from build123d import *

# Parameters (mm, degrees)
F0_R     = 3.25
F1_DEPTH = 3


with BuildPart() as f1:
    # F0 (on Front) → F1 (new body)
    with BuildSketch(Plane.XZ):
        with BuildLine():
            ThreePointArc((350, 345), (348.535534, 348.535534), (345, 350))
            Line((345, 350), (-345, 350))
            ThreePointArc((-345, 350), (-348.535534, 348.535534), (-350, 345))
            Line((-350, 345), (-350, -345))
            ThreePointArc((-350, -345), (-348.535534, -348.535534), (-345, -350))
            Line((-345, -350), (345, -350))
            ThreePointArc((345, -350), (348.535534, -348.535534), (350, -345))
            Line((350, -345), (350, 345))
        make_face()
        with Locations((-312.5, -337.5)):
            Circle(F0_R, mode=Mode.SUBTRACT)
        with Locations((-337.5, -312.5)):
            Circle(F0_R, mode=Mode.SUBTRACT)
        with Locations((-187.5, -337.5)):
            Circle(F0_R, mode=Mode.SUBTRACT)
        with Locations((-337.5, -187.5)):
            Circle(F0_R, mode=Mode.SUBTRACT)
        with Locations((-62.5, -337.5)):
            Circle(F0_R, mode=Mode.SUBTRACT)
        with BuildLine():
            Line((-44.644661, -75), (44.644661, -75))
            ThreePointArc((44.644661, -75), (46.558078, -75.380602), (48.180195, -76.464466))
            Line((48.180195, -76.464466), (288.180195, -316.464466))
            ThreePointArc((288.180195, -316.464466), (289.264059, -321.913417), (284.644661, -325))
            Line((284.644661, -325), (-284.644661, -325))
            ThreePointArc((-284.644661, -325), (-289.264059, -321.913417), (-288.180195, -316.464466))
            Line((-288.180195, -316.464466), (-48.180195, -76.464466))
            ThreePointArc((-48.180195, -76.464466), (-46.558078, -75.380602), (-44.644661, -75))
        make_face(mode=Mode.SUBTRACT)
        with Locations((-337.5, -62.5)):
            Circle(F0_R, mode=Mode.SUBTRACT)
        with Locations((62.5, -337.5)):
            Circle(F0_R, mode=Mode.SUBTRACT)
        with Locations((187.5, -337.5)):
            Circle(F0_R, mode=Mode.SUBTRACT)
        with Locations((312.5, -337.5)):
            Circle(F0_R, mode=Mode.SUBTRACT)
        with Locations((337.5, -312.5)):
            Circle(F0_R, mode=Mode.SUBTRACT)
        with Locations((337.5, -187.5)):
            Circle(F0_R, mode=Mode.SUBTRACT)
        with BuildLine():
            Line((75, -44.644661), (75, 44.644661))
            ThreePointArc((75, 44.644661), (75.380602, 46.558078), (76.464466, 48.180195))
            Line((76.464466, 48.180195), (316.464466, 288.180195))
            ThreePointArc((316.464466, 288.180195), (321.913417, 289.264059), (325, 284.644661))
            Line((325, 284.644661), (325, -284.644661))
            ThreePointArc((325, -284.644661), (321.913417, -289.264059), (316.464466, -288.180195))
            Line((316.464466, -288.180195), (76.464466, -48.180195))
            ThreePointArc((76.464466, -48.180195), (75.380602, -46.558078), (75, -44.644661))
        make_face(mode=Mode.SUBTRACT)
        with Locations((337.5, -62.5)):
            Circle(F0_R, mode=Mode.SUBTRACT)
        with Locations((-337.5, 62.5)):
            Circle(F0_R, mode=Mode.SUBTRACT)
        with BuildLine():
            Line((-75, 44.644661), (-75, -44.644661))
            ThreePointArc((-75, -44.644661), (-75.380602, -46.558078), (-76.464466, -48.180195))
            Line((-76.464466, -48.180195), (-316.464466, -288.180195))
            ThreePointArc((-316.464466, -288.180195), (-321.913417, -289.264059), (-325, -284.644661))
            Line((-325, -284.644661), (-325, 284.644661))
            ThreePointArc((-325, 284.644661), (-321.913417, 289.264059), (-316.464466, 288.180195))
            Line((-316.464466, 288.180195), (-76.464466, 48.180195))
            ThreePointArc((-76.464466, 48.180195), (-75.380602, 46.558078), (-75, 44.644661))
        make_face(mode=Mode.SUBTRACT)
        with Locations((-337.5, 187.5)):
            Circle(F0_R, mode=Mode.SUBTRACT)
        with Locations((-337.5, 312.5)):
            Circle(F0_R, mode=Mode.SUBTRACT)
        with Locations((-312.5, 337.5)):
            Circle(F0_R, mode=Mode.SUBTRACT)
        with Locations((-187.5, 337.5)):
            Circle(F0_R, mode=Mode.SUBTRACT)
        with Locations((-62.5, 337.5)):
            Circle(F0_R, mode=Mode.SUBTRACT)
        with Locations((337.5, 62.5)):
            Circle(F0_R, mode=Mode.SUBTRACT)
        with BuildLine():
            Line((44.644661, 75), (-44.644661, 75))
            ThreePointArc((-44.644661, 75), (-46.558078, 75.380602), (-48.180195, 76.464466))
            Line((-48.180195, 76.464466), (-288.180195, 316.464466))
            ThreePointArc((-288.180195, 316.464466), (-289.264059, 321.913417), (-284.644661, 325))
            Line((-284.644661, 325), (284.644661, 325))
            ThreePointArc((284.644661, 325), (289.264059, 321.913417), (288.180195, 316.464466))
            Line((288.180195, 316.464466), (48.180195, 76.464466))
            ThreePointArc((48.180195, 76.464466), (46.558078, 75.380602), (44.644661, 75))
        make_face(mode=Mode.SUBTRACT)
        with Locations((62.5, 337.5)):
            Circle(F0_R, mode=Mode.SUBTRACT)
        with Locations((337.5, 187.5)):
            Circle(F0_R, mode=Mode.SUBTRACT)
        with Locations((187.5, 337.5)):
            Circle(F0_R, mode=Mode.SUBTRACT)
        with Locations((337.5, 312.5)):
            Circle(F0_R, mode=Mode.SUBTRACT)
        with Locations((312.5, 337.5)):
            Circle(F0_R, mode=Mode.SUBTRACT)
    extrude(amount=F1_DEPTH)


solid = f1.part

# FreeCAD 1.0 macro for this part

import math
import FreeCAD as App
import Part
import Sketcher

V = App.Vector

doc = App.newDocument("Part")
body = doc.addObject("PartDesign::Body", "Body")

sketch1 = body.newObject("Sketcher::SketchObject", "Sketch")
sketch1.AttachmentSupport = (doc.getObject("XZ_Plane"), [""])
sketch1.MapMode = "FlatFace"
sketch1.addGeometry([
    Part.ArcOfCircle(Part.Circle(V(345, 345, 0), V(0, 0, 1), 5), math.radians(0), math.radians(90)),
    Part.LineSegment(V(345, 350, 0), V(-345, 350, 0)),
    Part.ArcOfCircle(Part.Circle(V(-345, 345, 0), V(0, 0, 1), 5), math.radians(90), math.radians(180)),
    Part.LineSegment(V(-350, 345, 0), V(-350, -345, 0)),
    Part.ArcOfCircle(Part.Circle(V(-345, -345, 0), V(0, 0, 1), 5), math.radians(180), math.radians(270)),
    Part.LineSegment(V(-345, -350, 0), V(345, -350, 0)),
    Part.ArcOfCircle(Part.Circle(V(345, -345, 0), V(0, 0, 1), 5), math.radians(-90), math.radians(0)),
    Part.LineSegment(V(350, -345, 0), V(350, 345, 0)),
    Part.Circle(V(-312.5, -337.5, 0), V(0, 0, 1), 3.2),
    Part.Circle(V(-337.5, -312.5, 0), V(0, 0, 1), 3.2),
    Part.Circle(V(-187.5, -337.5, 0), V(0, 0, 1), 3.2),
    Part.Circle(V(-337.5, -187.5, 0), V(0, 0, 1), 3.2),
    Part.Circle(V(-62.5, -337.5, 0), V(0, 0, 1), 3.2),
    Part.Circle(V(-337.5, -62.5, 0), V(0, 0, 1), 3.2),
    Part.Circle(V(62.5, -337.5, 0), V(0, 0, 1), 3.2),
    Part.ArcOfCircle(Part.Circle(V(-44.6, -80, 0), V(0, 0, 1), 5), math.radians(90), math.radians(135)),
    Part.LineSegment(V(-44.6, -75, 0), V(44.6, -75, 0)),
    Part.ArcOfCircle(Part.Circle(V(44.6, -80, 0), V(0, 0, 1), 5), math.radians(45), math.radians(90)),
    Part.LineSegment(V(48.2, -76.5, 0), V(288.2, -316.5, 0)),
    Part.ArcOfCircle(Part.Circle(V(284.6, -320, 0), V(0, 0, 1), 5), math.radians(-90), math.radians(45)),
    Part.LineSegment(V(284.6, -325, 0), V(-284.6, -325, 0)),
    Part.ArcOfCircle(Part.Circle(V(-284.6, -320, 0), V(0, 0, 1), 5), math.radians(135), math.radians(270)),
    Part.LineSegment(V(-288.2, -316.5, 0), V(-48.2, -76.5, 0)),
    Part.Circle(V(187.5, -337.5, 0), V(0, 0, 1), 3.2),
    Part.Circle(V(312.5, -337.5, 0), V(0, 0, 1), 3.2),
    Part.Circle(V(337.5, -312.5, 0), V(0, 0, 1), 3.2),
    Part.Circle(V(337.5, -187.5, 0), V(0, 0, 1), 3.2),
    Part.Circle(V(337.5, -62.5, 0), V(0, 0, 1), 3.2),
    Part.Circle(V(-337.5, 62.5, 0), V(0, 0, 1), 3.2),
    Part.ArcOfCircle(Part.Circle(V(-80, 44.6, 0), V(0, 0, 1), 5), math.radians(0), math.radians(45)),
    Part.LineSegment(V(-75, 44.6, 0), V(-75, -44.6, 0)),
    Part.ArcOfCircle(Part.Circle(V(-80, -44.6, 0), V(0, 0, 1), 5), math.radians(-45), math.radians(0)),
    Part.LineSegment(V(-76.5, -48.2, 0), V(-316.5, -288.2, 0)),
    Part.ArcOfCircle(Part.Circle(V(-320, -284.6, 0), V(0, 0, 1), 5), math.radians(180), math.radians(315)),
    Part.LineSegment(V(-325, -284.6, 0), V(-325, 284.6, 0)),
    Part.ArcOfCircle(Part.Circle(V(-320, 284.6, 0), V(0, 0, 1), 5), math.radians(45), math.radians(180)),
    Part.LineSegment(V(-316.5, 288.2, 0), V(-76.5, 48.2, 0)),
    Part.Circle(V(-337.5, 187.5, 0), V(0, 0, 1), 3.2),
    Part.Circle(V(-337.5, 312.5, 0), V(0, 0, 1), 3.2),
    Part.Circle(V(-312.5, 337.5, 0), V(0, 0, 1), 3.2),
    Part.Circle(V(-187.5, 337.5, 0), V(0, 0, 1), 3.2),
    Part.Circle(V(-62.5, 337.5, 0), V(0, 0, 1), 3.2),
    Part.ArcOfCircle(Part.Circle(V(80, -44.6, 0), V(0, 0, 1), 5), math.radians(180), math.radians(225)),
    Part.LineSegment(V(75, -44.6, 0), V(75, 44.6, 0)),
    Part.ArcOfCircle(Part.Circle(V(80, 44.6, 0), V(0, 0, 1), 5), math.radians(135), math.radians(180)),
    Part.LineSegment(V(76.5, 48.2, 0), V(316.5, 288.2, 0)),
    Part.ArcOfCircle(Part.Circle(V(320, 284.6, 0), V(0, 0, 1), 5), math.radians(0), math.radians(135)),
    Part.LineSegment(V(325, 284.6, 0), V(325, -284.6, 0)),
    Part.ArcOfCircle(Part.Circle(V(320, -284.6, 0), V(0, 0, 1), 5), math.radians(-135), math.radians(0)),
    Part.LineSegment(V(316.5, -288.2, 0), V(76.5, -48.2, 0)),
    Part.Circle(V(337.5, 62.5, 0), V(0, 0, 1), 3.2),
    Part.ArcOfCircle(Part.Circle(V(44.6, 80, 0), V(0, 0, 1), 5), math.radians(-90), math.radians(-45)),
    Part.LineSegment(V(44.6, 75, 0), V(-44.6, 75, 0)),
    Part.ArcOfCircle(Part.Circle(V(-44.6, 80, 0), V(0, 0, 1), 5), math.radians(-135), math.radians(-90)),
    Part.LineSegment(V(-48.2, 76.5, 0), V(-288.2, 316.5, 0)),
    Part.ArcOfCircle(Part.Circle(V(-284.6, 320, 0), V(0, 0, 1), 5), math.radians(90), math.radians(225)),
    Part.LineSegment(V(-284.6, 325, 0), V(284.6, 325, 0)),
    Part.ArcOfCircle(Part.Circle(V(284.6, 320, 0), V(0, 0, 1), 5), math.radians(-45), math.radians(90)),
    Part.LineSegment(V(288.2, 316.5, 0), V(48.2, 76.5, 0)),
    Part.Circle(V(62.5, 337.5, 0), V(0, 0, 1), 3.2),
    Part.Circle(V(337.5, 187.5, 0), V(0, 0, 1), 3.2),
    Part.Circle(V(187.5, 337.5, 0), V(0, 0, 1), 3.2),
    Part.Circle(V(337.5, 312.5, 0), V(0, 0, 1), 3.2),
    Part.Circle(V(312.5, 337.5, 0), V(0, 0, 1), 3.2),
], False)
sketch1.addConstraint([
    Sketcher.Constraint("Tangent", 0, 2, 1, 1),
    Sketcher.Constraint("Tangent", 1, 2, 2, 1),
    Sketcher.Constraint("Tangent", 2, 2, 3, 1),
    Sketcher.Constraint("Tangent", 3, 2, 4, 1),
    Sketcher.Constraint("Tangent", 4, 2, 5, 1),
    Sketcher.Constraint("Tangent", 5, 2, 6, 1),
    Sketcher.Constraint("Tangent", 6, 2, 7, 1),
    Sketcher.Constraint("Tangent", 7, 2, 0, 1),
    Sketcher.Constraint("Tangent", 15, 1, 16, 1),
    Sketcher.Constraint("Tangent", 16, 2, 17, 2),
    Sketcher.Constraint("Tangent", 17, 1, 18, 1),
    Sketcher.Constraint("Tangent", 18, 2, 19, 2),
    Sketcher.Constraint("Tangent", 19, 1, 20, 1),
    Sketcher.Constraint("Tangent", 20, 2, 21, 2),
    Sketcher.Constraint("Tangent", 21, 1, 22, 1),
    Sketcher.Constraint("Tangent", 22, 2, 15, 2),
    Sketcher.Constraint("Tangent", 29, 1, 30, 1),
    Sketcher.Constraint("Tangent", 30, 2, 31, 2),
    Sketcher.Constraint("Tangent", 31, 1, 32, 1),
    Sketcher.Constraint("Tangent", 32, 2, 33, 2),
    Sketcher.Constraint("Tangent", 33, 1, 34, 1),
    Sketcher.Constraint("Tangent", 34, 2, 35, 2),
    Sketcher.Constraint("Tangent", 35, 1, 36, 1),
    Sketcher.Constraint("Tangent", 36, 2, 29, 2),
    Sketcher.Constraint("Tangent", 42, 1, 43, 1),
    Sketcher.Constraint("Tangent", 43, 2, 44, 2),
    Sketcher.Constraint("Tangent", 44, 1, 45, 1),
    Sketcher.Constraint("Tangent", 45, 2, 46, 2),
    Sketcher.Constraint("Tangent", 46, 1, 47, 1),
    Sketcher.Constraint("Tangent", 47, 2, 48, 2),
    Sketcher.Constraint("Tangent", 48, 1, 49, 1),
    Sketcher.Constraint("Tangent", 49, 2, 42, 2),
    Sketcher.Constraint("Tangent", 51, 1, 52, 1),
    Sketcher.Constraint("Tangent", 52, 2, 53, 2),
    Sketcher.Constraint("Tangent", 53, 1, 54, 1),
    Sketcher.Constraint("Tangent", 54, 2, 55, 2),
    Sketcher.Constraint("Tangent", 55, 1, 56, 1),
    Sketcher.Constraint("Tangent", 56, 2, 57, 2),
    Sketcher.Constraint("Tangent", 57, 1, 58, 1),
    Sketcher.Constraint("Tangent", 58, 2, 51, 2),
    Sketcher.Constraint("Horizontal", 1),
    Sketcher.Constraint("Vertical", 3),
    Sketcher.Constraint("Horizontal", 5),
    Sketcher.Constraint("Vertical", 7),
    Sketcher.Constraint("Horizontal", 16),
    Sketcher.Constraint("Horizontal", 20),
    Sketcher.Constraint("Vertical", 30),
    Sketcher.Constraint("Vertical", 34),
    Sketcher.Constraint("Vertical", 43),
    Sketcher.Constraint("Vertical", 47),
    Sketcher.Constraint("Horizontal", 52),
    Sketcher.Constraint("Horizontal", 56),
    Sketcher.Constraint("Equal", 0, 2),
    Sketcher.Constraint("Equal", 2, 4),
    Sketcher.Constraint("Equal", 4, 6),
    Sketcher.Constraint("Equal", 8, 9),
    Sketcher.Constraint("Equal", 9, 10),
    Sketcher.Constraint("Equal", 10, 11),
    Sketcher.Constraint("Equal", 11, 12),
    Sketcher.Constraint("Equal", 12, 13),
    Sketcher.Constraint("Equal", 13, 14),
    Sketcher.Constraint("Equal", 6, 15),
    Sketcher.Constraint("Equal", 15, 17),
    Sketcher.Constraint("Equal", 6, 19),
    Sketcher.Constraint("Equal", 19, 21),
    Sketcher.Constraint("Equal", 14, 23),
    Sketcher.Constraint("Equal", 23, 24),
    Sketcher.Constraint("Equal", 24, 25),
    Sketcher.Constraint("Equal", 25, 26),
    Sketcher.Constraint("Equal", 26, 27),
    Sketcher.Constraint("Equal", 27, 28),
    Sketcher.Constraint("Equal", 17, 29),
    Sketcher.Constraint("Equal", 29, 31),
    Sketcher.Constraint("Equal", 21, 33),
    Sketcher.Constraint("Equal", 33, 35),
    Sketcher.Constraint("Equal", 28, 37),
    Sketcher.Constraint("Equal", 37, 38),
    Sketcher.Constraint("Equal", 38, 39),
    Sketcher.Constraint("Equal", 39, 40),
    Sketcher.Constraint("Equal", 40, 41),
    Sketcher.Constraint("Equal", 31, 42),
    Sketcher.Constraint("Equal", 42, 44),
    Sketcher.Constraint("Equal", 35, 46),
    Sketcher.Constraint("Equal", 46, 48),
    Sketcher.Constraint("Equal", 41, 50),
    Sketcher.Constraint("Equal", 44, 51),
    Sketcher.Constraint("Equal", 51, 53),
    Sketcher.Constraint("Equal", 48, 55),
    Sketcher.Constraint("Equal", 55, 57),
    Sketcher.Constraint("Equal", 50, 59),
    Sketcher.Constraint("Equal", 59, 60),
    Sketcher.Constraint("Equal", 60, 61),
    Sketcher.Constraint("Equal", 61, 62),
    Sketcher.Constraint("Equal", 62, 63),
    Sketcher.Constraint("Symmetric", 0, 3, 4, 3, -1, 1),
    Sketcher.Constraint("Symmetric", 27, 3, 28, 3, -1, 1),
    Sketcher.Constraint("Symmetric", 26, 3, 37, 3, -1, 1),
    Sketcher.Constraint("Symmetric", 25, 3, 38, 3, -1, 1),
    Sketcher.Constraint("Symmetric", 24, 3, 39, 3, -1, 1),
    Sketcher.Constraint("Symmetric", 23, 3, 40, 3, -1, 1),
    Sketcher.Constraint("Symmetric", 14, 3, 41, 3, -1, 1),
    Sketcher.Constraint("Symmetric", 29, 3, 42, 3, -1, 1),
    Sketcher.Constraint("Symmetric", 33, 3, 46, 3, -1, 1),
    Sketcher.Constraint("Symmetric", 13, 3, 50, 3, -1, 1),
    Sketcher.Constraint("Symmetric", 15, 3, 51, 3, -1, 1),
    Sketcher.Constraint("Symmetric", 19, 3, 55, 3, -1, 1),
    Sketcher.Constraint("Symmetric", 12, 3, 59, 3, -1, 1),
    Sketcher.Constraint("Symmetric", 11, 3, 60, 3, -1, 1),
    Sketcher.Constraint("Symmetric", 10, 3, 61, 3, -1, 1),
    Sketcher.Constraint("Symmetric", 9, 3, 62, 3, -1, 1),
    Sketcher.Constraint("Symmetric", 8, 3, 63, 3, -1, 1),
    Sketcher.Constraint("Symmetric", 12, 3, 14, 3, -2),
    Sketcher.Constraint("Symmetric", 10, 3, 23, 3, -2),
    Sketcher.Constraint("Symmetric", 8, 3, 24, 3, -2),
    Sketcher.Constraint("Symmetric", 9, 3, 25, 3, -2),
    Sketcher.Constraint("Symmetric", 11, 3, 26, 3, -2),
    Sketcher.Constraint("Symmetric", 13, 3, 27, 3, -2),
    Sketcher.Constraint("Perpendicular", 18, 22),
    Sketcher.Constraint("Parallel", 22, 32),
    Sketcher.Constraint("Perpendicular", 32, 36),
    Sketcher.Constraint("Perpendicular", 36, 45),
    Sketcher.Constraint("Perpendicular", 45, 49),
    Sketcher.Constraint("Parallel", 49, 54),
    Sketcher.Constraint("Perpendicular", 54, 58),
    Sketcher.Constraint("Horizontal", 8, 3, 10, 3),
    Sketcher.Constraint("Horizontal", 10, 3, 12, 3),
    Sketcher.Constraint("Horizontal", 31, 3, 42, 3),
    Sketcher.Constraint("Horizontal", 35, 3, 46, 3),
    Sketcher.Constraint("Vertical", 9, 3, 11, 3),
    Sketcher.Constraint("Vertical", 11, 3, 13, 3),
    Sketcher.Constraint("Vertical", 17, 3, 51, 3),
    Sketcher.Constraint("Equal", 5, 3),
    Sketcher.Constraint("Equal", 52, 30),
    Sketcher.Constraint("Equal", 56, 34),
    Sketcher.Constraint("Radius", 0, 5.0),
    Sketcher.Constraint("Diameter", 8, 6.5),
    Sketcher.Constraint("DistanceX", 1, 2, 1, 1, 690.0),
    Sketcher.Constraint("DistanceY", 19, 3, -1, 1, 320.0),
    Sketcher.Constraint("DistanceX", 33, 3, -1, 1, 320.0),
    Sketcher.Constraint("DistanceY", 15, 1, -1, 1, 75.0),
    Sketcher.Constraint("DistanceX", 8, 3, -1, 1, 312.5),
    Sketcher.Constraint("DistanceY", 8, 3, -1, 1, 337.5),
    Sketcher.Constraint("DistanceX", 9, 3, -1, 1, 337.5),
    Sketcher.Constraint("DistanceY", 9, 3, -1, 1, 312.5),
    Sketcher.Constraint("DistanceX", 10, 3, -1, 1, 187.5),
    Sketcher.Constraint("DistanceY", 11, 3, -1, 1, 187.5),
    Sketcher.Constraint("DistanceX", 12, 3, -1, 1, 62.5),
    Sketcher.Constraint("DistanceY", 13, 3, -1, 1, 62.5),
    Sketcher.Constraint("DistanceX", 16, 1, 16, 2, 89.289322),
])
pad1 = body.newObject("PartDesign::Pad", "Pad")
pad1.Profile = sketch1
pad1.Length = 3

doc.recompute()
